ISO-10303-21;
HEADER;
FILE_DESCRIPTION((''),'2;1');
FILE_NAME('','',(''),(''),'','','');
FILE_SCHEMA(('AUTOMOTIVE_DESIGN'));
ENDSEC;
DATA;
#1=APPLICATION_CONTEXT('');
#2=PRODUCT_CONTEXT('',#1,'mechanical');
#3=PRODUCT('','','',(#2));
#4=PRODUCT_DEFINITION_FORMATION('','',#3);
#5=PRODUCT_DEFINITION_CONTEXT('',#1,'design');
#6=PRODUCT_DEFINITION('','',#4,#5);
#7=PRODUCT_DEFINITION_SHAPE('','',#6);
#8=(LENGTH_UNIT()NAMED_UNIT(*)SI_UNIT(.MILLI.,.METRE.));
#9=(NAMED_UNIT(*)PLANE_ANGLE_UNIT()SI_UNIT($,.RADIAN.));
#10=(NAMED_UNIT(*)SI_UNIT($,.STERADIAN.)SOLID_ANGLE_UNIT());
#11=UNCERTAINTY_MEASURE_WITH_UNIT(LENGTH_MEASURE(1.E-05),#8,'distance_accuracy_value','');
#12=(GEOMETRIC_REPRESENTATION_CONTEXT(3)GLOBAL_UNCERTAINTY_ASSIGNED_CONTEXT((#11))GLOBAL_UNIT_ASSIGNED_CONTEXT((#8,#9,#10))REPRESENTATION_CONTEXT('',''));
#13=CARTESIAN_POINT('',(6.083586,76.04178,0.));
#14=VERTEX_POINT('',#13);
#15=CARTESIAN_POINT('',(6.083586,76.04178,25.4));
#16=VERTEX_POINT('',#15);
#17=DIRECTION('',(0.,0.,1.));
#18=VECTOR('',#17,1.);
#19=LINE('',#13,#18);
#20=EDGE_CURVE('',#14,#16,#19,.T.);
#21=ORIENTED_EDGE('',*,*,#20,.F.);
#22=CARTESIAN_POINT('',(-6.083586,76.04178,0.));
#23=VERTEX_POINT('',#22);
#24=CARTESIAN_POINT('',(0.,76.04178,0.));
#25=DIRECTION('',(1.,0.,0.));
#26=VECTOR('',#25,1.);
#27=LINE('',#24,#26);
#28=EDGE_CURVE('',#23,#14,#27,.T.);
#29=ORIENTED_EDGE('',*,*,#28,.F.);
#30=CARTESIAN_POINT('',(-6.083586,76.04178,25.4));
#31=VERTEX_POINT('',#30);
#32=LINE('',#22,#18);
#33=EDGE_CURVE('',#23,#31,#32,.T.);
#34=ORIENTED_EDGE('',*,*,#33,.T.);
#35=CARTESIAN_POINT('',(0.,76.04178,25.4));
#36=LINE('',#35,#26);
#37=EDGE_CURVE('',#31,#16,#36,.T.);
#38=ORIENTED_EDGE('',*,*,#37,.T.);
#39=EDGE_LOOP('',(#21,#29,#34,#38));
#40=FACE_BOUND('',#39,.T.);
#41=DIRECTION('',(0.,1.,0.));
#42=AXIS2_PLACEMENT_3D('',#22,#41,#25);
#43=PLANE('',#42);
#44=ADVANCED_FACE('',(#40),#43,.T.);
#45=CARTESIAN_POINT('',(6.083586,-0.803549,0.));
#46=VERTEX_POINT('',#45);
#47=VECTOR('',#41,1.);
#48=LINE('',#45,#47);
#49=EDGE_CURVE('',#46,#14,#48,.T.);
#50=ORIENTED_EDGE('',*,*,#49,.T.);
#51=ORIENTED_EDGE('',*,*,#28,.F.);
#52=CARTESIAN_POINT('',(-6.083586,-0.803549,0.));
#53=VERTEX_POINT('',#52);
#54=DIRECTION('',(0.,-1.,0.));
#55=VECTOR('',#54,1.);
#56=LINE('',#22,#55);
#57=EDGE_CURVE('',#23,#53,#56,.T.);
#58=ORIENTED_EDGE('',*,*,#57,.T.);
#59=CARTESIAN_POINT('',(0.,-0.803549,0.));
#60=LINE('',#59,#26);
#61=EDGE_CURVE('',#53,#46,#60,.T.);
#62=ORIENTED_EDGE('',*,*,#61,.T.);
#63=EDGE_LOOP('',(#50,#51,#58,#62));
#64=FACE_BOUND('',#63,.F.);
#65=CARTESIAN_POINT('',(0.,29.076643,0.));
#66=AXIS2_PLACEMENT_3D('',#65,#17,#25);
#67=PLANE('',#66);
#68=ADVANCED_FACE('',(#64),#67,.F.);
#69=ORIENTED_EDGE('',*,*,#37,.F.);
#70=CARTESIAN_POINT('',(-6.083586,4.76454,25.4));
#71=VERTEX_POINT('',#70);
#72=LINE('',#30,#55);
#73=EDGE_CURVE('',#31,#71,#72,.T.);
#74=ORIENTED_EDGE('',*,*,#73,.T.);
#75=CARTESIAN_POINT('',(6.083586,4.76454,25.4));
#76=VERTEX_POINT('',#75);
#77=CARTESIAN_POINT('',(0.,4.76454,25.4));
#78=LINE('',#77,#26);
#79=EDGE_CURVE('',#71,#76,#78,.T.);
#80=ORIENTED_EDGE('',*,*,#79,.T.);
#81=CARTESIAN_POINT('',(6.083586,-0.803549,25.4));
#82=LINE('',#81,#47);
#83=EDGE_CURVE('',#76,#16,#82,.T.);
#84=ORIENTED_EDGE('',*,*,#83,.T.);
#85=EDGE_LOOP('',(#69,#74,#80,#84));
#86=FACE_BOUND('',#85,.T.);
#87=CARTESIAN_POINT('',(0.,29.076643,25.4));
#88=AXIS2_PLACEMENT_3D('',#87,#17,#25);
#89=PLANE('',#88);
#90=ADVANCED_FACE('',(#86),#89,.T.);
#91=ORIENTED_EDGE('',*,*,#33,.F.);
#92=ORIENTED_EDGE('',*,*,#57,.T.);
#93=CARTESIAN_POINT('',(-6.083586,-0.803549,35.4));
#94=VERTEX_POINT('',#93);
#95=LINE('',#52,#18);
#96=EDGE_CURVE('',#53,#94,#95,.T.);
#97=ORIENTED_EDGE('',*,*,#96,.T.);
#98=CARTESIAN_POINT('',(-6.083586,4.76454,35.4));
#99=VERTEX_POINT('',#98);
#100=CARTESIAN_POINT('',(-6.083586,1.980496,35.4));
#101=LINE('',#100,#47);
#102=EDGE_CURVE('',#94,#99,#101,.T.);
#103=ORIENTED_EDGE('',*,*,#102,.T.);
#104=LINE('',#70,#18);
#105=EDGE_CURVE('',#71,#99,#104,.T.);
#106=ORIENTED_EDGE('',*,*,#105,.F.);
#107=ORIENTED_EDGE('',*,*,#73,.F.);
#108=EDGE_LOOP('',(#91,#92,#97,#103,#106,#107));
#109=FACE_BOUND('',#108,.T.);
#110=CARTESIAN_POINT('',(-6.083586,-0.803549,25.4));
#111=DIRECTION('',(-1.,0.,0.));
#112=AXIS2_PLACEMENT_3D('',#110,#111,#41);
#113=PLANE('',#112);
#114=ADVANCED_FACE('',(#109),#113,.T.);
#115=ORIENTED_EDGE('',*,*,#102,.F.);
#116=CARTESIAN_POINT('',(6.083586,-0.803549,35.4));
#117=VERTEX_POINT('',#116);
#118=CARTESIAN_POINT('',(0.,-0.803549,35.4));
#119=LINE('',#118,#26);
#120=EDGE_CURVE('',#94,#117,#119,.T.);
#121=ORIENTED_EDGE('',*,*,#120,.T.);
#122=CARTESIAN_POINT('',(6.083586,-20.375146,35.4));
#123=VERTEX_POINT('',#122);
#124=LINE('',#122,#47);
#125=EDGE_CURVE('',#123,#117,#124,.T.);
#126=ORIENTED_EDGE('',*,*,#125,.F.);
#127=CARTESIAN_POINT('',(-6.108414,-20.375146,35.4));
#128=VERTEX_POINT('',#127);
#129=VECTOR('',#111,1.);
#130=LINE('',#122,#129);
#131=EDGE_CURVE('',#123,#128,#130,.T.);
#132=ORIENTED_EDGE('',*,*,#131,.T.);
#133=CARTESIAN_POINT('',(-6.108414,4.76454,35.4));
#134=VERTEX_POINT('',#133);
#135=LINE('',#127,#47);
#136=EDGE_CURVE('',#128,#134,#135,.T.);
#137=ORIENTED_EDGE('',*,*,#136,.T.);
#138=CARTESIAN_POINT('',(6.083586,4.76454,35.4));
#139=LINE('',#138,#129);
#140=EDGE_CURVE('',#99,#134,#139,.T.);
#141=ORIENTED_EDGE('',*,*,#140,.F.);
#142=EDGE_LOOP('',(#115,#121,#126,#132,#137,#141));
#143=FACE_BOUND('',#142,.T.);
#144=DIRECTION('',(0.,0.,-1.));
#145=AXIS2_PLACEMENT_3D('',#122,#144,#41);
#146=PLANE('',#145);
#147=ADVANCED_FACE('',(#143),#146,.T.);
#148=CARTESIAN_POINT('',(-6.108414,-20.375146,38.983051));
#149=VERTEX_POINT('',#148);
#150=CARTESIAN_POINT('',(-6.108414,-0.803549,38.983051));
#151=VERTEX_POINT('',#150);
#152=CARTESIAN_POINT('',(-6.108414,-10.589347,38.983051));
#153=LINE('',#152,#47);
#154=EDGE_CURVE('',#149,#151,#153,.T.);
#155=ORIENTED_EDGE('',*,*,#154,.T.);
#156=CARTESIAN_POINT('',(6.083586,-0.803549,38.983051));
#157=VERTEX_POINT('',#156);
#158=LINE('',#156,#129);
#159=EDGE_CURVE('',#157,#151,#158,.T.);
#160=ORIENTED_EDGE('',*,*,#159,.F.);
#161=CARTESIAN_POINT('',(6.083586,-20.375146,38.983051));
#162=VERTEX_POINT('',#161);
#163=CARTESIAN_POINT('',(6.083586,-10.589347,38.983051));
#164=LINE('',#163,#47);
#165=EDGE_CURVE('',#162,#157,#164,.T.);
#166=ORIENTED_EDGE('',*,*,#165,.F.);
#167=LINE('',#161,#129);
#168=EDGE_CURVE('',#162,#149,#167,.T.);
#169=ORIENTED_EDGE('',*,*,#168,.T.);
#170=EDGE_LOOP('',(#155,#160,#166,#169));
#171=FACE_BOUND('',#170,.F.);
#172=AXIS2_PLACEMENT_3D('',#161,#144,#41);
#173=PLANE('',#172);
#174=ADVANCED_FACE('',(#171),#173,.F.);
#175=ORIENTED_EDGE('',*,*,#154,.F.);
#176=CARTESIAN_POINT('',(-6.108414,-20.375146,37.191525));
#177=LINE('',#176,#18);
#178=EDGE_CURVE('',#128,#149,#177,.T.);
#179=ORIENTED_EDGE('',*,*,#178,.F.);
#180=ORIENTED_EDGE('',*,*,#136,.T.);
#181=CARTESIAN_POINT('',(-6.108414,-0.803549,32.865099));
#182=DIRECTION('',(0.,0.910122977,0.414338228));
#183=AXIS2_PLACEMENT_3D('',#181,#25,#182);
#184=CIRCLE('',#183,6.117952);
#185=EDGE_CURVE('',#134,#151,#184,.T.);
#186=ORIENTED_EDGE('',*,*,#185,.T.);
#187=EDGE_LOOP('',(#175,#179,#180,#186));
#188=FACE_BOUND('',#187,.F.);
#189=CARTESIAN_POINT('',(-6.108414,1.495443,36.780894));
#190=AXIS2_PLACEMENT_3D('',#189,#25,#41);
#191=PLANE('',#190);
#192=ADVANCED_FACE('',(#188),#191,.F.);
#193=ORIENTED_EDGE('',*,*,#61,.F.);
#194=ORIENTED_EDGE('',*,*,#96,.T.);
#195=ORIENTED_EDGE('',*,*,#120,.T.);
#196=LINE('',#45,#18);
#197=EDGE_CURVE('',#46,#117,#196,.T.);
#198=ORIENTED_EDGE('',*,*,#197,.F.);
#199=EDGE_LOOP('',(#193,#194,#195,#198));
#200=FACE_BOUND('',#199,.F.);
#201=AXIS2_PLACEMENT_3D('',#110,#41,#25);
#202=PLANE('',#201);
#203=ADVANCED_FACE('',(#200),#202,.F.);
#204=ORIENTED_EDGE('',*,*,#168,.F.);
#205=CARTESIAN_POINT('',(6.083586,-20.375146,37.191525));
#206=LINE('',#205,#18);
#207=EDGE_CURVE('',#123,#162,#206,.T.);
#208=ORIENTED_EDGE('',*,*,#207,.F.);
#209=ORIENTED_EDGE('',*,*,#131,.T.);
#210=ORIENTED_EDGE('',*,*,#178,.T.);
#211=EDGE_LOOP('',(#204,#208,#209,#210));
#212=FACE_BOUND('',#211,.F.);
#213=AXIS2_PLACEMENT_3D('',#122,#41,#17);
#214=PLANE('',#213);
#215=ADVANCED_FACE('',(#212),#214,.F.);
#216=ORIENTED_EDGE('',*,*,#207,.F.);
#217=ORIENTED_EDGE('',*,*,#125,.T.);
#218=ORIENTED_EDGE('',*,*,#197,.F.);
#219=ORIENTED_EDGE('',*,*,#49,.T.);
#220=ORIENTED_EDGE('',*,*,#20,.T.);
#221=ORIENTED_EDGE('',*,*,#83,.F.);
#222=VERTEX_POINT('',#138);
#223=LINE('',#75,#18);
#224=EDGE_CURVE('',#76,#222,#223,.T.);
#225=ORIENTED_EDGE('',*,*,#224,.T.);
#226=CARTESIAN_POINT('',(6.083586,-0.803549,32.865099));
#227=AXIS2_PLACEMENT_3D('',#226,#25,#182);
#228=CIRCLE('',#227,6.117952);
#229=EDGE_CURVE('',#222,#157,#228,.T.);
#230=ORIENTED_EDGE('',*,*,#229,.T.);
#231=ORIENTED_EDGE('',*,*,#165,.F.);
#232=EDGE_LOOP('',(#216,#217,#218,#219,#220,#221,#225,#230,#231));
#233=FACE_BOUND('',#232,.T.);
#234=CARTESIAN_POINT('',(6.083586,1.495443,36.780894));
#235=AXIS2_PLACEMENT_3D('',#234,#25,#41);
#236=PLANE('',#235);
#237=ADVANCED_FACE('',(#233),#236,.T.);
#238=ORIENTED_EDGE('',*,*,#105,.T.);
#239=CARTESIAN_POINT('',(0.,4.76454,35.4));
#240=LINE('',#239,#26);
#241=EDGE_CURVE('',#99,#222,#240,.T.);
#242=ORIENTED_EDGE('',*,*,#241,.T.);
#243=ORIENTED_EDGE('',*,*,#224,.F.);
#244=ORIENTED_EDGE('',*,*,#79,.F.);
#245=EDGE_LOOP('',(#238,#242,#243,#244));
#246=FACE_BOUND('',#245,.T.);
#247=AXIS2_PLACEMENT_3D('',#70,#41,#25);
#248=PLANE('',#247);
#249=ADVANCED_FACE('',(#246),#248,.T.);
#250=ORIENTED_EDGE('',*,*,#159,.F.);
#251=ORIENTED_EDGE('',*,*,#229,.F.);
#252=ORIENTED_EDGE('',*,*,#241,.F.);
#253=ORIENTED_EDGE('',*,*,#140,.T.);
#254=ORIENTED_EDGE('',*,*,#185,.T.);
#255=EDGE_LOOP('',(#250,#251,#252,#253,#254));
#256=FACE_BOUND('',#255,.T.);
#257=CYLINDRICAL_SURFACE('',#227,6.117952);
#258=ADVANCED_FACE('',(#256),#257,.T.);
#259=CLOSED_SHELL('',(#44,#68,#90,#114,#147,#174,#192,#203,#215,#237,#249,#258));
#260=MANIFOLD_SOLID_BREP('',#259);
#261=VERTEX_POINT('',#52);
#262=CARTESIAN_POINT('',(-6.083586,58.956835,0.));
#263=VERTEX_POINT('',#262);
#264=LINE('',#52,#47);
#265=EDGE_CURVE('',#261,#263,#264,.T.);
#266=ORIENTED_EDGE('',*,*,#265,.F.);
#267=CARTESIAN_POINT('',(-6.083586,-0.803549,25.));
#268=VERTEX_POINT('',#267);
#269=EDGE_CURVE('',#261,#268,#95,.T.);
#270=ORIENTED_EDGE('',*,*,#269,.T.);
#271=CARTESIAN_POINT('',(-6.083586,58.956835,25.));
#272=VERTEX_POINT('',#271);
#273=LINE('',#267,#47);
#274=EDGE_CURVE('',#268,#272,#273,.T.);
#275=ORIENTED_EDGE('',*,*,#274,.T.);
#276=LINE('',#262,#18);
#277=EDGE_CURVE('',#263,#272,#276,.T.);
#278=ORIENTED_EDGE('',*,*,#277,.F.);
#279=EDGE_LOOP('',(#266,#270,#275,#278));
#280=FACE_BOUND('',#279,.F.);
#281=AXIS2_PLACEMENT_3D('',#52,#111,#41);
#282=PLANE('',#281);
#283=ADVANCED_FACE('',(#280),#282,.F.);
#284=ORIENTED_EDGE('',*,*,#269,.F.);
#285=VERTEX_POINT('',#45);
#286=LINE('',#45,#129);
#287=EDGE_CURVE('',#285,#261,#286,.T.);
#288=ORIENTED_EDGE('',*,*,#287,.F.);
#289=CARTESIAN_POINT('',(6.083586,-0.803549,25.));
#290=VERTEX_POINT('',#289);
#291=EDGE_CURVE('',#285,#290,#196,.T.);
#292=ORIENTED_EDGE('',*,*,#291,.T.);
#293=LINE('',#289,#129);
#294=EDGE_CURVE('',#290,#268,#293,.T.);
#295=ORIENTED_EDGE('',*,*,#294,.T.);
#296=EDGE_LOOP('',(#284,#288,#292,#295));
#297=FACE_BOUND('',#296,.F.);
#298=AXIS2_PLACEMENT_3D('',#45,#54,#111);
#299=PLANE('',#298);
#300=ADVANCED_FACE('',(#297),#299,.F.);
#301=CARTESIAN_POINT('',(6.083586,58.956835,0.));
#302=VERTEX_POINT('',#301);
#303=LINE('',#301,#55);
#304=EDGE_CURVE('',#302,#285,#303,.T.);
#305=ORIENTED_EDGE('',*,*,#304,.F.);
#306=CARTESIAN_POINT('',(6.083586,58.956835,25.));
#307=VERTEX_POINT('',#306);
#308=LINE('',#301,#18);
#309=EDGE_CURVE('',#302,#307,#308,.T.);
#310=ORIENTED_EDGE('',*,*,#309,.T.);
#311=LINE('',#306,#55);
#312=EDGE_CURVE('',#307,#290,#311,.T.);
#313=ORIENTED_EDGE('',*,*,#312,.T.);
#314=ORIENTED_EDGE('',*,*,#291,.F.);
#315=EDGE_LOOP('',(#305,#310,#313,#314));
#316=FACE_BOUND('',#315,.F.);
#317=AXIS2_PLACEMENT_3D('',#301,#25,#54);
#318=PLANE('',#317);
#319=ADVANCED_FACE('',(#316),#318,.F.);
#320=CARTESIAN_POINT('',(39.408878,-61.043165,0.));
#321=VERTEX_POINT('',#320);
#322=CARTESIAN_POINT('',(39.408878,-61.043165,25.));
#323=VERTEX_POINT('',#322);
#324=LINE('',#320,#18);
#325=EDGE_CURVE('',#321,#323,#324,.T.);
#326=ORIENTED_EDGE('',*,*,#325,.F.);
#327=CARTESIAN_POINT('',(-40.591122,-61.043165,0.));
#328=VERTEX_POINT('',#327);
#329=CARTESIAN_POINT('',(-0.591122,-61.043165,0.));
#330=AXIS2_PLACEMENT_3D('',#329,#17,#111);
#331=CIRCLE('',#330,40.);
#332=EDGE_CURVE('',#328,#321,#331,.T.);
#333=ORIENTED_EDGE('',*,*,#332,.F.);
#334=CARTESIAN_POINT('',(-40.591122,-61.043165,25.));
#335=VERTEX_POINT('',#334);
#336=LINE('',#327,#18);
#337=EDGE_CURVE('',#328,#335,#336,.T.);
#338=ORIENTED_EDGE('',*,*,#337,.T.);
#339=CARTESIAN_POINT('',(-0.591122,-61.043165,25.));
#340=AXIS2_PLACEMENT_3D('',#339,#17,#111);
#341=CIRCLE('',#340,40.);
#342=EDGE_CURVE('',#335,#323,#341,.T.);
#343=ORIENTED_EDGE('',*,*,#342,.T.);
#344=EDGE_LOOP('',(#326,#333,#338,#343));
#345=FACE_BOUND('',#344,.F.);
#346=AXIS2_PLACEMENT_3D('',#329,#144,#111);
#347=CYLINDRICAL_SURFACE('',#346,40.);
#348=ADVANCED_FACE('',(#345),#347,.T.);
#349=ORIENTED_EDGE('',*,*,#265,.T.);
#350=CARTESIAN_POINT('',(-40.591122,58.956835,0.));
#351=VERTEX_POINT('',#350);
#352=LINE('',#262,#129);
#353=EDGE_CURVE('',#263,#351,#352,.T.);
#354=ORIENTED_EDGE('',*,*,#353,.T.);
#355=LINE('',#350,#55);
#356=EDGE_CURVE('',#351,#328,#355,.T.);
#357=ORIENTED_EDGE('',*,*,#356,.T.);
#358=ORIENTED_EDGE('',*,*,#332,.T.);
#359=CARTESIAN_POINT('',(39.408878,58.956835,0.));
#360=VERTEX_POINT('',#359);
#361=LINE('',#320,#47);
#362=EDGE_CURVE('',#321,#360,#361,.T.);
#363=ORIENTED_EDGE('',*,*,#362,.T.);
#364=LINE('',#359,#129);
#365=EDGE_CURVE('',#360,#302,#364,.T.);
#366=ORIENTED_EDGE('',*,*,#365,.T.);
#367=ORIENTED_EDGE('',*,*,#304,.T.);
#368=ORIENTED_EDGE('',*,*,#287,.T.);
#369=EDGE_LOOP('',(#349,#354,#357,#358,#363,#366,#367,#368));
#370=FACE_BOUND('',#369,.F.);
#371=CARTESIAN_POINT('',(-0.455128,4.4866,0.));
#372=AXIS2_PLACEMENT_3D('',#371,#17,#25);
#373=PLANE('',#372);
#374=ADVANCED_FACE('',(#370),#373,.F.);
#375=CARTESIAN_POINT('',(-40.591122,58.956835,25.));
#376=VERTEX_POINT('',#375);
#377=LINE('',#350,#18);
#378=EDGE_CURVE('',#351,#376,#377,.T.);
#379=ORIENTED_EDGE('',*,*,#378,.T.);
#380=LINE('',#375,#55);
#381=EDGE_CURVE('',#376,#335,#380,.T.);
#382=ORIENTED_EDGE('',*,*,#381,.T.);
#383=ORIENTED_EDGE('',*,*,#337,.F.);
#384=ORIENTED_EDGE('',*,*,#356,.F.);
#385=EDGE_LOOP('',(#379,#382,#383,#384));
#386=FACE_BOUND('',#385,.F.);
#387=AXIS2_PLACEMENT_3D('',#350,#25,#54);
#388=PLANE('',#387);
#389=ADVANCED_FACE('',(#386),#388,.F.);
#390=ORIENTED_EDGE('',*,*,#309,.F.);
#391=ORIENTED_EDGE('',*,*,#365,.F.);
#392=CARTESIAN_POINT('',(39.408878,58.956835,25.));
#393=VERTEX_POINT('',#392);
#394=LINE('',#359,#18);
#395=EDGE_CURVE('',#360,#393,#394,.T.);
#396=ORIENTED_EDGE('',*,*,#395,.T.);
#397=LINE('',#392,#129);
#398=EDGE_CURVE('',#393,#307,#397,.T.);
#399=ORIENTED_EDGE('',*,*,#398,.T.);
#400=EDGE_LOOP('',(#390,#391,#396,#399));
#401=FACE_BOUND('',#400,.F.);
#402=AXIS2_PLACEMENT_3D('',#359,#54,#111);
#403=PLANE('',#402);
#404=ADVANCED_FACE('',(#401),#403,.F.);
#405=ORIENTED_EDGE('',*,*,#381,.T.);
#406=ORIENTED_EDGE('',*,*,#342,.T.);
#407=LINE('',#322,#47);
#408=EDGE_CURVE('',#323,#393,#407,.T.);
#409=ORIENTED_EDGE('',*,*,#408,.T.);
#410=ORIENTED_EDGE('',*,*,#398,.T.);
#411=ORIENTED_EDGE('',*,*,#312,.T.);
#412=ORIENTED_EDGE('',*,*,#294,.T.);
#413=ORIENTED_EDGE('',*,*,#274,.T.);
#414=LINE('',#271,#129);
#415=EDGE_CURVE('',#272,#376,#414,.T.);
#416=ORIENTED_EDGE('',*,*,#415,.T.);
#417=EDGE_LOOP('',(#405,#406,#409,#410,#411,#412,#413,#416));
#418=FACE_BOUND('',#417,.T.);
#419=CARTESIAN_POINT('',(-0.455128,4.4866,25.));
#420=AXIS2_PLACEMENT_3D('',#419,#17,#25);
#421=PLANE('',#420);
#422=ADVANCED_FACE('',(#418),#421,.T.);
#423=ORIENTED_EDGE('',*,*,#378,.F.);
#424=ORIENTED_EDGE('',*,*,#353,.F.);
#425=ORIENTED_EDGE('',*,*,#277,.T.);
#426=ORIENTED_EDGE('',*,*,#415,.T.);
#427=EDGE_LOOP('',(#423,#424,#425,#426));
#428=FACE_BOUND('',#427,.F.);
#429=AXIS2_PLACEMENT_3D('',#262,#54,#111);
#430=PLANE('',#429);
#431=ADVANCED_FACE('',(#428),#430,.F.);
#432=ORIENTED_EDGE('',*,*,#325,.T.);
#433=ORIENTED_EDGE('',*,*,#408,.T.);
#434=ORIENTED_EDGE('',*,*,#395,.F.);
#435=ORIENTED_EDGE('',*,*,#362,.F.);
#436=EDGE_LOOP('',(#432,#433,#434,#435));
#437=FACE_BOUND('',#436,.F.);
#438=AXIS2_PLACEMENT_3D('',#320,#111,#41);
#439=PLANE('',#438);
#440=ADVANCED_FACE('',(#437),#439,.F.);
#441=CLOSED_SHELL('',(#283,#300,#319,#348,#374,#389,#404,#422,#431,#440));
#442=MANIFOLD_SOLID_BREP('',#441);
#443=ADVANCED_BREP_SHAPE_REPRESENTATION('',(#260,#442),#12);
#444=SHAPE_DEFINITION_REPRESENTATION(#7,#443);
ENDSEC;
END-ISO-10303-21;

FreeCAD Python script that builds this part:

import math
import FreeCAD as App
import Part
import Sketcher

V = App.Vector
Q = App.Units.Quantity

doc = App.newDocument("Part")
body = doc.addObject("PartDesign::Body", "Body")

sketch1 = body.newObject("Sketcher::SketchObject", "Sketch")
sketch1.AttachmentSupport = (doc.getObject("XY_Plane"), [""])
sketch1.MapMode = "FlatFace"
sketch1.addGeometry([
    Part.LineSegment(V(-6, 59, 0), V(-41, 59, 0)),
    Part.LineSegment(V(-41, 59, 0), V(-41, -61, 0)),
    Part.ArcOfCircle(Part.Circle(V(-1, -61, 0), V(0, 0, 1), 40), math.radians(180), math.radians(360)),
    Part.LineSegment(V(39, -61, 0), V(39, 59, 0)),
    Part.LineSegment(V(39, 59, 0), V(6, 59, 0)),
    Part.LineSegment(V(6, 59, 0), V(6, -1, 0)),
    Part.LineSegment(V(6, -1, 0), V(-6, -1, 0)),
    Part.LineSegment(V(-6, -1, 0), V(-6, 59, 0)),
], False)
sketch1.addConstraint([
    Sketcher.Constraint("Coincident", 0, 2, 1, 1),
    Sketcher.Constraint("Tangent", 1, 2, 2, 1),
    Sketcher.Constraint("Tangent", 2, 2, 3, 1),
    Sketcher.Constraint("Coincident", 3, 2, 4, 1),
    Sketcher.Constraint("Coincident", 4, 2, 5, 1),
    Sketcher.Constraint("Coincident", 5, 2, 6, 1),
    Sketcher.Constraint("Coincident", 6, 2, 7, 1),
    Sketcher.Constraint("Coincident", 7, 2, 0, 1),
    Sketcher.Constraint("Horizontal", 0),
    Sketcher.Constraint("Vertical", 1),
    Sketcher.Constraint("Vertical", 3),
    Sketcher.Constraint("Horizontal", 4),
    Sketcher.Constraint("Vertical", 5),
    Sketcher.Constraint("Horizontal", 6),
    Sketcher.Constraint("Vertical", 7),
    Sketcher.Constraint("Symmetric", 4, 2, 7, 2, -2),
    Sketcher.Constraint("Radius", 2, Q("40 mm")),
    Sketcher.Constraint("DistanceY", 1, 2, 1, 1, Q("120 mm")),
    Sketcher.Constraint("DistanceX", 6, 2, 6, 1, Q("12.167172 mm")),
    Sketcher.Constraint("DistanceX", 0, 2, 0, 1, Q("34.507536 mm")),
    Sketcher.Constraint("DistanceY", 5, 2, 5, 1, Q("59.760384 mm")),
    Sketcher.Constraint("DistanceY", 5, 2, -1, 1, Q("0.803549 mm")),
])
pad1 = body.newObject("PartDesign::Pad", "Pad")
pad1.Profile = sketch1
pad1.Length = 25
body2 = doc.addObject("PartDesign::Body", "Body001")

sketch2 = body2.newObject("Sketcher::SketchObject", "Sketch001")
sketch2.AttachmentSupport = (doc.getObject("XY_Plane001"), [""])
sketch2.MapMode = "FlatFace"
sketch2.addGeometry([
    Part.LineSegment(V(-6, -1, 0), V(6, -1, 0)),
    Part.LineSegment(V(6, -1, 0), V(6, 76, 0)),
    Part.LineSegment(V(6, 76, 0), V(-6, 76, 0)),
    Part.LineSegment(V(-6, 76, 0), V(-6, -1, 0)),
], False)
sketch2.addConstraint([
    Sketcher.Constraint("Coincident", 0, 2, 1, 1),
    Sketcher.Constraint("Coincident", 1, 2, 2, 1),
    Sketcher.Constraint("Coincident", 2, 2, 3, 1),
    Sketcher.Constraint("Coincident", 3, 2, 0, 1),
    Sketcher.Constraint("Horizontal", 0),
    Sketcher.Constraint("Vertical", 1),
    Sketcher.Constraint("Horizontal", 2),
    Sketcher.Constraint("Vertical", 3),
    Sketcher.Constraint("DistanceX", 0, 1, 0, 2, Q("12.167172 mm")),
    Sketcher.Constraint("DistanceY", 1, 1, 1, 2, Q("76.845329 mm")),
    Sketcher.Constraint("DistanceY", 0, 2, -1, 1, Q("0.803549 mm")),
    Sketcher.Constraint("DistanceX", -1, 1, 0, 2, Q("6.083586 mm")),
])
pad2 = body2.newObject("PartDesign::Pad", "Pad001")
pad2.Profile = sketch2
pad2.Length = 25.4

sketch3 = body2.newObject("Sketcher::SketchObject", "Sketch002")
sketch3.AttachmentSupport = (doc.getObject("XY_Plane001"), [""])
sketch3.MapMode = "FlatFace"
sketch3.AttachmentOffset = App.Placement(V(0, 0, 25.4), App.Rotation())
sketch3.addGeometry([
    Part.LineSegment(V(-6, 5, 0), V(-6, -1, 0)),
    Part.LineSegment(V(-6, -1, 0), V(6, -1, 0)),
    Part.LineSegment(V(6, -1, 0), V(6, 5, 0)),
    Part.LineSegment(V(6, 5, 0), V(-6, 5, 0)),
], False)
sketch3.addConstraint([
    Sketcher.Constraint("Coincident", 0, 2, 1, 1),
    Sketcher.Constraint("Coincident", 1, 2, 2, 1),
    Sketcher.Constraint("Coincident", 2, 2, 3, 1),
    Sketcher.Constraint("Coincident", 3, 2, 0, 1),
    Sketcher.Constraint("Vertical", 0),
    Sketcher.Constraint("Horizontal", 1),
    Sketcher.Constraint("Vertical", 2),
    Sketcher.Constraint("Horizontal", 3),
    Sketcher.Constraint("DistanceX", 1, 1, 1, 2, Q("12.167172 mm")),
    Sketcher.Constraint("DistanceY", 0, 2, 0, 1, Q("5.568089 mm")),
    Sketcher.Constraint("DistanceY", 0, 2, -1, 1, Q("0.803549 mm")),
    Sketcher.Constraint("DistanceX", 0, 2, -1, 1, Q("6.083586 mm")),
])
pad3 = body2.newObject("PartDesign::Pad", "Pad002")
pad3.Profile = sketch3
pad3.Length = 10

sketch4 = body2.newObject("Sketcher::SketchObject", "Sketch003")
sketch4.AttachmentSupport = (doc.getObject("YZ_Plane001"), [""])
sketch4.MapMode = "FlatFace"
sketch4.AttachmentOffset = App.Placement(V(0, 0, 6.083586), App.Rotation())
sketch4.addGeometry([
    Part.ArcOfCircle(Part.Circle(V(-0.8, 32.9, 0), V(0, 0, 1), 6.1), math.radians(24), math.radians(90)),
    Part.LineSegment(V(-0.8, 39, 0), V(-20.4, 39, 0)),
    Part.LineSegment(V(-20.4, 39, 0), V(-20.4, 35.4, 0)),
    Part.LineSegment(V(-20.4, 35.4, 0), V(4.8, 35.4, 0)),
], False)
sketch4.addConstraint([
    Sketcher.Constraint("Tangent", 0, 2, 1, 1),
    Sketcher.Constraint("Coincident", 1, 2, 2, 1),
    Sketcher.Constraint("Coincident", 2, 2, 3, 1),
    Sketcher.Constraint("Coincident", 3, 2, 0, 1),
    Sketcher.Constraint("Horizontal", 1),
    Sketcher.Constraint("Vertical", 2),
    Sketcher.Constraint("Horizontal", 3),
    Sketcher.Constraint("DistanceY", -1, 1, 2, 2, Q("35.4 mm")),
    Sketcher.Constraint("Radius", 0, Q("6.117952 mm")),
    Sketcher.Constraint("DistanceY", 2, 2, 2, 1, Q("3.583051 mm")),
    Sketcher.Constraint("DistanceX", 1, 2, 1, 1, Q("19.571597 mm")),
    Sketcher.Constraint("DistanceX", 0, 3, -1, 1, Q("0.803549 mm")),
])
pad4 = body2.newObject("PartDesign::Pad", "Pad003")
pad4.Profile = sketch4
pad4.Length = 12.192
pad4.Reversed = True

doc.recompute()
